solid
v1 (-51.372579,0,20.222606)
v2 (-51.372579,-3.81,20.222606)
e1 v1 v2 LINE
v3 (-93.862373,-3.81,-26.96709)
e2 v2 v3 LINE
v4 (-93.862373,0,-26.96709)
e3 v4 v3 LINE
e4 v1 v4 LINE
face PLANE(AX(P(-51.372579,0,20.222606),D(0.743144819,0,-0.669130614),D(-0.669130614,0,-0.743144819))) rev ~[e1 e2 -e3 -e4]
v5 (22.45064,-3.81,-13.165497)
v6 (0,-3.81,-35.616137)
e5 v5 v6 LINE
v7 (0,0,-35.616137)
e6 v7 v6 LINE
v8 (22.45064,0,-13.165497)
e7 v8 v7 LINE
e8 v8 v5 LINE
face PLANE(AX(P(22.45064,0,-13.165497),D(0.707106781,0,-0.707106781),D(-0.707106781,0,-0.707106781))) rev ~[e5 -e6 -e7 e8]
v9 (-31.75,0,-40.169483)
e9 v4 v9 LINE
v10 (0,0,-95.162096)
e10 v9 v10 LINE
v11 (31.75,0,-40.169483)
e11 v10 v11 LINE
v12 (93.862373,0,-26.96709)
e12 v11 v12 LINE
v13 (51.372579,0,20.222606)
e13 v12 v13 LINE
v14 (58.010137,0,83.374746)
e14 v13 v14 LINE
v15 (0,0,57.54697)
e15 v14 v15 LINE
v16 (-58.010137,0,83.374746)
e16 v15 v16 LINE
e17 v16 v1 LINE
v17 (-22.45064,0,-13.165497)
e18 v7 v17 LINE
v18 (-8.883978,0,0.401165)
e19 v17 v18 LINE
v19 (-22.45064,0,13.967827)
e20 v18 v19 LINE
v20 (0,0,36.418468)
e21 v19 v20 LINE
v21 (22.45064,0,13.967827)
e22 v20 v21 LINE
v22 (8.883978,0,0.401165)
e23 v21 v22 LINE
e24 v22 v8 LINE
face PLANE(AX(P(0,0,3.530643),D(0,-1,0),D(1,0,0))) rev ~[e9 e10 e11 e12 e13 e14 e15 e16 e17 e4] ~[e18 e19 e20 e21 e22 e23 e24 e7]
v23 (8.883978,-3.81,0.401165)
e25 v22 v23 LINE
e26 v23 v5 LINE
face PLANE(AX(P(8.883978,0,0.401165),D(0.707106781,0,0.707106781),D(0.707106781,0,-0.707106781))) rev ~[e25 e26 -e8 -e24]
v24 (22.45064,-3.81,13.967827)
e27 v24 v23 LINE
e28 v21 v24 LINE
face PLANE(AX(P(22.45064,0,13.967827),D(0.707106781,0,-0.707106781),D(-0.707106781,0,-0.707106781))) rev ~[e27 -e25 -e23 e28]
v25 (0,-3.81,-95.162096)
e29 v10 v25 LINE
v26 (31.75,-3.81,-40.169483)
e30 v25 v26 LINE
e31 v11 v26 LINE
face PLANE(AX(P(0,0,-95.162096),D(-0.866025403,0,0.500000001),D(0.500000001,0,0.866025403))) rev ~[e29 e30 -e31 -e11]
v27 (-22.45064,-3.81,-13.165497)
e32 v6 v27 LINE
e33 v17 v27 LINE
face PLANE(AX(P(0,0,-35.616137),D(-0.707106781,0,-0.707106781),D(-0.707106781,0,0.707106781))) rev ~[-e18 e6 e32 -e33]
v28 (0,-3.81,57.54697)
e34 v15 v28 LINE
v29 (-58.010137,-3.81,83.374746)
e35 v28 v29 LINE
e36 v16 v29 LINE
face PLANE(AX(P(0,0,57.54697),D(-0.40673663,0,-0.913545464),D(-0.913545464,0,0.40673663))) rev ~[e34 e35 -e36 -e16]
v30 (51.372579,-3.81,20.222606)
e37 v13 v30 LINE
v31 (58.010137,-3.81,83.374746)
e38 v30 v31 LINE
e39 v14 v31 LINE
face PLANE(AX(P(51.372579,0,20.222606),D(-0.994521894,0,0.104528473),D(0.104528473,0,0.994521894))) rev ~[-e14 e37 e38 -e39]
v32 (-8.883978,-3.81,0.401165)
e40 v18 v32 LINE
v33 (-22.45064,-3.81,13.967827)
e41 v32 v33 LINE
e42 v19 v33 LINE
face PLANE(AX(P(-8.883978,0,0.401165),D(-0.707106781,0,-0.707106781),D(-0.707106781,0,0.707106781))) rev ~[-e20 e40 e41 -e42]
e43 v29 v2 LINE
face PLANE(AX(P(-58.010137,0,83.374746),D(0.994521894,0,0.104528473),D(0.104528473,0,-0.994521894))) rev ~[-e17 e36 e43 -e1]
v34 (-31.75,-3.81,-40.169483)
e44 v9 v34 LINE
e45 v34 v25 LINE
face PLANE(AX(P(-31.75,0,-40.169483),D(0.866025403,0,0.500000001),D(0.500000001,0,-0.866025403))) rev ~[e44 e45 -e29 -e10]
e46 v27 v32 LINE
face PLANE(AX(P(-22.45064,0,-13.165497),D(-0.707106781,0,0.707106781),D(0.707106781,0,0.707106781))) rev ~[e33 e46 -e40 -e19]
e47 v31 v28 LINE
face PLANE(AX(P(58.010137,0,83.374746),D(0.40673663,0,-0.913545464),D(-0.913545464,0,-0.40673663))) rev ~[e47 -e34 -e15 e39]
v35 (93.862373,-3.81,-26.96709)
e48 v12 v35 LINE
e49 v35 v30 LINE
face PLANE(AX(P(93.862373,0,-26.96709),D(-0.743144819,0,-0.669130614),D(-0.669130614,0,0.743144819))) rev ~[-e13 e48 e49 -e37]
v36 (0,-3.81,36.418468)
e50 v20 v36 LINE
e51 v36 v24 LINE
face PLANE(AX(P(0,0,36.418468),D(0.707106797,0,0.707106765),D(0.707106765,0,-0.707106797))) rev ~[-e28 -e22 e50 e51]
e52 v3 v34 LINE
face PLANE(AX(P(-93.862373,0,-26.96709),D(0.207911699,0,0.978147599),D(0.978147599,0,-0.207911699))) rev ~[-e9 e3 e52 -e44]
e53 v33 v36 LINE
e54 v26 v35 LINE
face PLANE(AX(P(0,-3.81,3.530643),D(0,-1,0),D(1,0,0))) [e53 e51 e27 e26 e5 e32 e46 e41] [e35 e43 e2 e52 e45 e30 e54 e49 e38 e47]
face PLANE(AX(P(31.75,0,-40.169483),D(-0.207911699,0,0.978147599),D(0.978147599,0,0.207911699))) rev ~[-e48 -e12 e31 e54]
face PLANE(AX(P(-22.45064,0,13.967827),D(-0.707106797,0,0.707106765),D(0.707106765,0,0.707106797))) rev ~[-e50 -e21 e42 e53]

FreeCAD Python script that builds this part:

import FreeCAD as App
import Part
import Sketcher

V = App.Vector
Q = App.Units.Quantity


def add_polygon(sketch, points):
    """Adds a closed chain of lines whose ends are joined by coincident constraints."""
    first, n = sketch.GeometryCount, len(points)
    for a, b in zip(points, points[1:] + points[:1]):
        sketch.addGeometry(Part.LineSegment(App.Vector(*a, 0), App.Vector(*b, 0)), False)
    for i in range(n):
        sketch.addConstraint(Sketcher.Constraint("Coincident", first + i, 2, first + (i + 1) % n, 1))

doc = App.newDocument("Part")
body = doc.addObject("PartDesign::Body", "Body")

# Sketch on XZ plane
sketch1 = body.newObject("Sketcher::SketchObject", "Sketch")
sketch1.AttachmentSupport = (doc.getObject("XZ_Plane"), [""])
sketch1.MapMode = "FlatFace"
add_polygon(sketch1, [(58, 83), (0, 58), (-58, 83), (-51, 20), (-94, -27), (-32, -40), (0, -95), (32, -40), (94, -27), (51, 20)])  # lines 0-9
add_polygon(sketch1, [(0, -36), (-22, -13), (-9, 0), (-22, 14), (0, 36), (22, 14), (9, 0), (22, -13)])  # lines 10-17
sketch1.addConstraint(Sketcher.Constraint("Symmetric", 4, 2, 6, 2, -2))
sketch1.addConstraint(Sketcher.Constraint("Symmetric", 3, 2, 7, 2, -2))
sketch1.addConstraint(Sketcher.Constraint("Symmetric", 2, 2, 8, 2, -2))
sketch1.addConstraint(Sketcher.Constraint("Symmetric", 1, 2, 9, 2, -2))
sketch1.addConstraint(Sketcher.Constraint("Symmetric", 12, 2, 14, 2, -2))
sketch1.addConstraint(Sketcher.Constraint("Symmetric", 11, 2, 15, 2, -2))
sketch1.addConstraint(Sketcher.Constraint("Symmetric", 10, 2, 16, 2, -2))
sketch1.addConstraint(Sketcher.Constraint("PointOnObject", 0, 2, -2))
sketch1.addConstraint(Sketcher.Constraint("PointOnObject", 5, 2, -2))
sketch1.addConstraint(Sketcher.Constraint("PointOnObject", 13, 2, -2))
sketch1.addConstraint(Sketcher.Constraint("PointOnObject", 17, 2, -2))
sketch1.addConstraint(Sketcher.Constraint("Perpendicular", 10, 11))
sketch1.addConstraint(Sketcher.Constraint("Perpendicular", 11, 12))
sketch1.addConstraint(Sketcher.Constraint("Perpendicular", 12, 13))
sketch1.addConstraint(Sketcher.Constraint("Perpendicular", 13, 14))
sketch1.addConstraint(Sketcher.Constraint("Vertical", 10, 2, 12, 2))
sketch1.addConstraint(Sketcher.Constraint("Equal", 1, 2))
sketch1.addConstraint(Sketcher.Constraint("Equal", 2, 3))
sketch1.addConstraint(Sketcher.Constraint("Equal", 3, 4))
sketch1.addConstraint(Sketcher.Constraint("Equal", 4, 5))
sketch1.addConstraint(Sketcher.Constraint("Angle", 0, Q("-156.000001 deg")))
sketch1.addConstraint(Sketcher.Constraint("Angle", 2, Q("-83.999999 deg")))
sketch1.addConstraint(Sketcher.Constraint("Angle", 3, Q("-132.000001 deg")))
sketch1.addConstraint(Sketcher.Constraint("Angle", 4, Q("-12 deg")))
sketch1.addConstraint(Sketcher.Constraint("Distance", 0, Q("2.5 in")))
sketch1.addConstraint(Sketcher.Constraint("Distance", 10, Q("1.25 in")))
sketch1.addConstraint(Sketcher.Constraint("DistanceX", 2, 2, 11, 2, 42.488601))
sketch1.addConstraint(Sketcher.Constraint("DistanceY", -1, 1, 0, 2, 57.54697))
sketch1.addConstraint(Sketcher.Constraint("DistanceY", 11, 2, 2, 2, 19.821441))
pad1 = body.newObject("PartDesign::Pad", "Pad")
pad1.Profile = sketch1
pad1.Length = Q("0.15 in")

doc.recompute()
